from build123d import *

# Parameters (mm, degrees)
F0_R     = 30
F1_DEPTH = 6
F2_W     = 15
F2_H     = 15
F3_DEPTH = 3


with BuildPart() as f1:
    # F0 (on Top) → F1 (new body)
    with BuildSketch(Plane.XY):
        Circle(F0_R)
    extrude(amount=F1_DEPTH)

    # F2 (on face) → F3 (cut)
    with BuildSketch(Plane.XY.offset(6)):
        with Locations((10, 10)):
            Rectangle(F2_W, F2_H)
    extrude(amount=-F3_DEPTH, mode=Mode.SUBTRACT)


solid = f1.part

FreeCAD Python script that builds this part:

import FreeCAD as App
import Part
import Sketcher

V = App.Vector
Q = App.Units.Quantity


def add_polygon(sketch, points):
    """Adds a closed chain of lines whose ends are joined by coincident constraints."""
    first, n = sketch.GeometryCount, len(points)
    for a, b in zip(points, points[1:] + points[:1]):
        sketch.addGeometry(Part.LineSegment(App.Vector(*a, 0), App.Vector(*b, 0)), False)
    for i in range(n):
        sketch.addConstraint(Sketcher.Constraint("Coincident", first + i, 2, first + (i + 1) % n, 1))

doc = App.newDocument("Part")
body = doc.addObject("PartDesign::Body", "Body")

sketch1 = body.newObject("Sketcher::SketchObject", "Sketch")
sketch1.AttachmentSupport = (doc.getObject("XY_Plane"), [""])
sketch1.MapMode = "FlatFace"
sketch1.addGeometry(Part.Circle(V(0, 0, 0), V(0, 0, 1), 30), False)
sketch1.addConstraint(Sketcher.Constraint("Coincident", 0, 3, -1, 1))
sketch1.addConstraint(Sketcher.Constraint("Diameter", 0, Q("60 mm")))
pad1 = body.newObject("PartDesign::Pad", "Pad")
pad1.Profile = sketch1
pad1.Length = 6

sketch2 = body.newObject("Sketcher::SketchObject", "Sketch001")
sketch2.AttachmentSupport = (doc.getObject("XY_Plane"), [""])
sketch2.MapMode = "FlatFace"
sketch2.AttachmentOffset = App.Placement(V(0, 0, 6), App.Rotation())
add_polygon(sketch2, [(2, 18), (2, 2), (18, 2), (18, 18)])
sketch2.addConstraint(Sketcher.Constraint("Vertical", 0))
sketch2.addConstraint(Sketcher.Constraint("Horizontal", 1))
sketch2.addConstraint(Sketcher.Constraint("Vertical", 2))
sketch2.addConstraint(Sketcher.Constraint("Horizontal", 3))
sketch2.addConstraint(Sketcher.Constraint("Equal", 3, 0))
sketch2.addConstraint(Sketcher.Constraint("DistanceX", 1, 1, 1, 2, Q("15 mm")))
sketch2.addConstraint(Sketcher.Constraint("DistanceX", -1, 1, 0, 2, Q("2.5 mm")))
sketch2.addConstraint(Sketcher.Constraint("DistanceY", -1, 1, 0, 2, Q("2.5 mm")))
pocket1 = body.newObject("PartDesign::Pocket", "Pocket")
pocket1.Profile = sketch2
pocket1.Length = 3

doc.recompute()
